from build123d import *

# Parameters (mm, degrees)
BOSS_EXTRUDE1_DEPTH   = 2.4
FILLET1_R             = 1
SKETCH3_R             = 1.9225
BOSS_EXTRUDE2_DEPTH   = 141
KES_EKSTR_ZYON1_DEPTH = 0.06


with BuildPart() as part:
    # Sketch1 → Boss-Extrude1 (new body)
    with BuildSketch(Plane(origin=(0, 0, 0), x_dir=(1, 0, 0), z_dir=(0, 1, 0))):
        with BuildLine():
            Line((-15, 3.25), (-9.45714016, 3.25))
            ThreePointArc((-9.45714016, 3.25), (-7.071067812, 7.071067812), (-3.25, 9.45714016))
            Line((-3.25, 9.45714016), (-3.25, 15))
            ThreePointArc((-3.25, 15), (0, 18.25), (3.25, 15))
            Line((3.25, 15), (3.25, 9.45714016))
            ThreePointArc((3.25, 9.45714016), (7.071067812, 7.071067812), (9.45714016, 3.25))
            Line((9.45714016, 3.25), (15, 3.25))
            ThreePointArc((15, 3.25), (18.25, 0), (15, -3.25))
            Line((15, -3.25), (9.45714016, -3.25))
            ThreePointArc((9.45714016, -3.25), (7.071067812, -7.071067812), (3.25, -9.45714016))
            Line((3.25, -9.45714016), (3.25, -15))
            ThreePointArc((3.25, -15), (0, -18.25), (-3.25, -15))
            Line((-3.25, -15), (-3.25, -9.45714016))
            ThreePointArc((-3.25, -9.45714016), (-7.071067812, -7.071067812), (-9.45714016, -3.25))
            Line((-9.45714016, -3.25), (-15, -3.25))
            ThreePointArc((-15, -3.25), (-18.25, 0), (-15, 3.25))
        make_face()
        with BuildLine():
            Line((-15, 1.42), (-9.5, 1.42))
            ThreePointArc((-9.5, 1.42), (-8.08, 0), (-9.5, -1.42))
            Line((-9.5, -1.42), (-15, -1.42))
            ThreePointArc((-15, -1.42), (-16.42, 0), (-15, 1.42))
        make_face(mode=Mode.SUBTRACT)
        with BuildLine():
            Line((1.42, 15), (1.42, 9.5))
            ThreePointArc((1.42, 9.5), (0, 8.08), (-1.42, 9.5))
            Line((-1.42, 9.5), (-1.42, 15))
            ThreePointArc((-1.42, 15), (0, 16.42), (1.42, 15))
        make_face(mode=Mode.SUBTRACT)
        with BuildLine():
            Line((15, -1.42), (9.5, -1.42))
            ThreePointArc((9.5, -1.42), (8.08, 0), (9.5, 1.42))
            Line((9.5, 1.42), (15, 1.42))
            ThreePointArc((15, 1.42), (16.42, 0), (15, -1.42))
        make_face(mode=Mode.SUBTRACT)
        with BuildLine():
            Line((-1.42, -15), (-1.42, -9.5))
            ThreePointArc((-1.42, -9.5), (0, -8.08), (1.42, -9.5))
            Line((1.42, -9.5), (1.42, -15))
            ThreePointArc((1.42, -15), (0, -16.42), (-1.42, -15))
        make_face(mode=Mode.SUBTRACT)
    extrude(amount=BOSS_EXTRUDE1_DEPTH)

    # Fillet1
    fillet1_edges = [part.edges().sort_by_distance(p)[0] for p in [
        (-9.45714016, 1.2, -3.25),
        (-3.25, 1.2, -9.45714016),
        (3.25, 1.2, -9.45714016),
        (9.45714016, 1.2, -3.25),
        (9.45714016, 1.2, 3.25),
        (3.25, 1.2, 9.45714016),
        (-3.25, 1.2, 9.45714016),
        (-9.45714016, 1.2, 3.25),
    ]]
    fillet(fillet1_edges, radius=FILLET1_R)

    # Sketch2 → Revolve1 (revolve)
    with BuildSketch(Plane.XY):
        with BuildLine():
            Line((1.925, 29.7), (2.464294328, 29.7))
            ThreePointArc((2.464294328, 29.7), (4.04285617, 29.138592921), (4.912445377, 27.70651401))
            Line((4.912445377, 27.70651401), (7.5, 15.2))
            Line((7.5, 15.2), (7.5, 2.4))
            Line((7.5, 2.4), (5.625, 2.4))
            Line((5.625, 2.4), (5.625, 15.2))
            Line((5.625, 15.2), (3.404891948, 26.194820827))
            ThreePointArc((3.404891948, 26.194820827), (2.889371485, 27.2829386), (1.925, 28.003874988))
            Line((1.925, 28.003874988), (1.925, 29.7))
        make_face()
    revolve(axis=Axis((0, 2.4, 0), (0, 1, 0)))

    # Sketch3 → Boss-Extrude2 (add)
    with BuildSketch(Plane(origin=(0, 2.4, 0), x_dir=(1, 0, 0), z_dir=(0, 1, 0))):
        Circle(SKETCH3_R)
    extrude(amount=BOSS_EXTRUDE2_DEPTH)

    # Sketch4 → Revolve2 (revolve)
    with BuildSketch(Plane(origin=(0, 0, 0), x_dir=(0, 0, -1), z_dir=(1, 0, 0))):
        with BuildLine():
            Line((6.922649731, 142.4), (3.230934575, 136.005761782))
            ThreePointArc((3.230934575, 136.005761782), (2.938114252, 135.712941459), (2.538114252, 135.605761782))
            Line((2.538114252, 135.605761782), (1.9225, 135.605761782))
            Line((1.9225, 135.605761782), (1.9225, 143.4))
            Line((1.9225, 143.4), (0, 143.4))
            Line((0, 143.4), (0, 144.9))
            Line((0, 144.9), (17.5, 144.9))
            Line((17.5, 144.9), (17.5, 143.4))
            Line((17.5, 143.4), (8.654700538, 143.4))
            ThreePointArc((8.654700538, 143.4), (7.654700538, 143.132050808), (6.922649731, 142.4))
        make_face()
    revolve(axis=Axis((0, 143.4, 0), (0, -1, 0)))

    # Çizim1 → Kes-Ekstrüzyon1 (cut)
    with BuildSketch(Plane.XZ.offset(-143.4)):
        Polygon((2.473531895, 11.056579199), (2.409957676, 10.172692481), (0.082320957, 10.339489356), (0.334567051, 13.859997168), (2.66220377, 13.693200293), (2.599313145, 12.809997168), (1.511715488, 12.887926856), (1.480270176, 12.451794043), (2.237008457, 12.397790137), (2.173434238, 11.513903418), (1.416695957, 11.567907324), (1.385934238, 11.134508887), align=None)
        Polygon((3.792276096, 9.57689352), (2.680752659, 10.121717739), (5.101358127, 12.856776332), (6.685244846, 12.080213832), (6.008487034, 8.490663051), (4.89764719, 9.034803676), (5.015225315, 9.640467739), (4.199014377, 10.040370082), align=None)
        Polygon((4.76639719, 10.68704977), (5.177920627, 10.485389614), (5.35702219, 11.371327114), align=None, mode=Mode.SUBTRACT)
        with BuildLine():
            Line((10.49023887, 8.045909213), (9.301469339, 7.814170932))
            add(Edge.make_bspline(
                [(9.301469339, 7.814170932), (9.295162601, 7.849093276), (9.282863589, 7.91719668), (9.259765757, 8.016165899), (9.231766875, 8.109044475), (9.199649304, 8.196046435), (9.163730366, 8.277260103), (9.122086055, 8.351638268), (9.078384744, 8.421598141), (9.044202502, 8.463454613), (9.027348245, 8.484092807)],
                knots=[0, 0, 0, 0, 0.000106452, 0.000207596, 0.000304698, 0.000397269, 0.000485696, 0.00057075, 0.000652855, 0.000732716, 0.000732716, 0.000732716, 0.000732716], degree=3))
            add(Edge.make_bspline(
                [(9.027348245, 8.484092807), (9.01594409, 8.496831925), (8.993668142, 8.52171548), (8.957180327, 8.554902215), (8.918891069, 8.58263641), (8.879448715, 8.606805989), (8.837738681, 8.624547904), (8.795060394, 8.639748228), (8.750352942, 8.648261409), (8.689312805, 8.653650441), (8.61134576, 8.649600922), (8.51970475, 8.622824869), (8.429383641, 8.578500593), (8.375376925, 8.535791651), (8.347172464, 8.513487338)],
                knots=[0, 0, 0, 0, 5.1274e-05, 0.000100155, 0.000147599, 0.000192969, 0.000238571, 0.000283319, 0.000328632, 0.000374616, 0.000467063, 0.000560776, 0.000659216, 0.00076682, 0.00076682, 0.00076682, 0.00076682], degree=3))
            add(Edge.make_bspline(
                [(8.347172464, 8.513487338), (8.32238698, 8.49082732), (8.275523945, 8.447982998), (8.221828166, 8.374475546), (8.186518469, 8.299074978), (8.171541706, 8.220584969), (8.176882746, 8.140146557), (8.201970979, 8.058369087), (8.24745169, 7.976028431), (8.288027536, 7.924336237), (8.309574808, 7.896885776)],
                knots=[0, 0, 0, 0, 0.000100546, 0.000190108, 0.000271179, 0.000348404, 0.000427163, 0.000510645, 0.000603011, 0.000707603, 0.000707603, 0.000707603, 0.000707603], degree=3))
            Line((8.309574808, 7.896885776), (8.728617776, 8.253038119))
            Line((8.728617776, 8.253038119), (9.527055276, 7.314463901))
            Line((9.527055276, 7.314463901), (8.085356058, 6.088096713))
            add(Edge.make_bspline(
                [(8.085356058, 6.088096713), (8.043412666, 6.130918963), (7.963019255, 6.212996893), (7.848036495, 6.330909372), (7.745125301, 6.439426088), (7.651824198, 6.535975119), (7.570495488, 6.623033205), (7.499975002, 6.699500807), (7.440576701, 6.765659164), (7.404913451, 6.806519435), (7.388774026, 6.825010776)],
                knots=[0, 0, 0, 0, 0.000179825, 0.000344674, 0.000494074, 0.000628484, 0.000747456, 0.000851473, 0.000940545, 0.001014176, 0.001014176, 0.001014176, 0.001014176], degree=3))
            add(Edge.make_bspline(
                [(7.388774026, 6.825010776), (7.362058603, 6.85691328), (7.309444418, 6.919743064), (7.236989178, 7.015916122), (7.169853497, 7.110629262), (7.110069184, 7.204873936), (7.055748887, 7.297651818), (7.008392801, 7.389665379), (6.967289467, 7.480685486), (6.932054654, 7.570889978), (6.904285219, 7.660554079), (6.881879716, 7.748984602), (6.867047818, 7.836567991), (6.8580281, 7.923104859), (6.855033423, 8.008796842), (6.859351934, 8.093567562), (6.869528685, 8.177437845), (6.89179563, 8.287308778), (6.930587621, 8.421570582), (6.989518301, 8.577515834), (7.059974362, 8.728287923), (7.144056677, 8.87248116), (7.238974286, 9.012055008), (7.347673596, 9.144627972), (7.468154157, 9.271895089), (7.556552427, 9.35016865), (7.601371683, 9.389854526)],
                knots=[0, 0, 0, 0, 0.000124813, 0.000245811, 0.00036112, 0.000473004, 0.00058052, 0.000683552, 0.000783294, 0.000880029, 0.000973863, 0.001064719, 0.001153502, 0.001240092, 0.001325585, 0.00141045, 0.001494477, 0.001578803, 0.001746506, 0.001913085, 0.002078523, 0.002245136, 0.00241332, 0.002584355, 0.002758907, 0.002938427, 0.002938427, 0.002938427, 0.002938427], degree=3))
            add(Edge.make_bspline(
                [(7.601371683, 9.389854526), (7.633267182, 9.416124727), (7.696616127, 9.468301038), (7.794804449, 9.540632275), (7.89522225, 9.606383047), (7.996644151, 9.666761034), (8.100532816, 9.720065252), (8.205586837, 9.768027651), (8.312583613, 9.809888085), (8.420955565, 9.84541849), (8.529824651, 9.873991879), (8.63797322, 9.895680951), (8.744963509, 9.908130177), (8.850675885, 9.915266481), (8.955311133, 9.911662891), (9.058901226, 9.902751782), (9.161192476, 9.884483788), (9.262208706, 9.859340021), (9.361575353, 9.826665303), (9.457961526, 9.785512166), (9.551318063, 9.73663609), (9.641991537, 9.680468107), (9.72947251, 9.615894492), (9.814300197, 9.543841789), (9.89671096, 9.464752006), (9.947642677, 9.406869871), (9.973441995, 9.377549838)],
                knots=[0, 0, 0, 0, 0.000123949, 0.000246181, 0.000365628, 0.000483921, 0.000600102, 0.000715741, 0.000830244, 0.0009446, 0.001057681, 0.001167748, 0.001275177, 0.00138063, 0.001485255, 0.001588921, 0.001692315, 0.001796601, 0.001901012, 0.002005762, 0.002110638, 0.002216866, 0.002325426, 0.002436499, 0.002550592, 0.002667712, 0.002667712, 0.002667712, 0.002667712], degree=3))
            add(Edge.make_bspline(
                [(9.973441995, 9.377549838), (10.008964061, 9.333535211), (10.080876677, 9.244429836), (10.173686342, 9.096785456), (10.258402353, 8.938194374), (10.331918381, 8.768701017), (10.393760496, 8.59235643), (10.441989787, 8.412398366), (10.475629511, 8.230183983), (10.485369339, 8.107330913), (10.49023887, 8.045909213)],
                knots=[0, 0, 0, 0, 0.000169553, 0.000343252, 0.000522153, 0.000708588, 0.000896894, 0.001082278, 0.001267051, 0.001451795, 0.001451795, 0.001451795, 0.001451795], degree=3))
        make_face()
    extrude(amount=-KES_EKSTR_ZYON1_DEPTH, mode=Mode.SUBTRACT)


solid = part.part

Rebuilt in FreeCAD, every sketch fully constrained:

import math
import FreeCAD as App
import Part
import Sketcher
from FreeCAD import Vector
Q = App.Units.Quantity


def edges_at(feature, points):
    """Names of the edges that pass closest to the given points."""
    edges = feature.Shape.Edges
    near = lambda p: min(range(len(edges)), key=lambda i: edges[i].distToShape(Part.Vertex(*p))[0])
    return sorted({f"Edge{near(p) + 1}" for p in points})

doc = App.newDocument("Part")
params = doc.addObject("Spreadsheet::Sheet", "Params")
for row, (alias, value) in enumerate([
    ("sketch1_radius", "10 mm"),
    ("sketch1_radius2", "3.25 mm"),
    ("sketch1_radius3", "1.42 mm"),
    ("sketch1_width", "5.5 mm"),
    ("pad1_length", "2.4 mm"),
    ("fillet_radius", "1 mm"),
    ("sketch2_radius", "2.5 mm"),
    ("sketch2_height", "12.8 mm"),
    ("revolution_angle", "360 deg"),
    ("pad2_length", "141 mm"),
    ("sketch4_radius", "2 mm"),
    ("sketch4_radius2", "0.8 mm"),
    ("sketch4_width", "1.5 mm"),
    ("sketch4_height", "17.5 mm"),
    ("revolution2_angle", "360 deg"),
    ("pocket1_length", "0.06 mm"),
], start=1):
    params.set(f"A{row}", alias)
    params.set(f"B{row}", "=" + value)
    params.setAlias(f"B{row}", alias)

body = doc.addObject("PartDesign::Body", "Body")

# Sketch on XZ plane
sketch1 = body.newObject("Sketcher::SketchObject", "Sketch")
sketch1.AttachmentSupport = (doc.getObject("XZ_Plane"), [""])
sketch1.MapMode = "FlatFace"
sketch1.addGeometry([
    Part.LineSegment(Vector(-9.5, -3.2, 0), Vector(-15, -3.2, 0)),  # 0
    Part.ArcOfCircle(Part.Circle(Vector(-15, 0, 0), Vector(0, 0, 1), 3.2), math.radians(90), math.radians(270)),  # 1
    Part.LineSegment(Vector(-15, 3.2, 0), Vector(-9.5, 3.2, 0)),  # 2
    Part.ArcOfCircle(Part.Circle(Vector(0, 0, 0), Vector(0, 0, 1), 10), math.radians(109), math.radians(161)),  # 3
    Part.LineSegment(Vector(-3.2, 9.5, 0), Vector(-3.2, 15, 0)),  # 4
    Part.ArcOfCircle(Part.Circle(Vector(0, 15, 0), Vector(0, 0, 1), 3.2), math.radians(0), math.radians(180)),  # 5
    Part.LineSegment(Vector(3.2, 15, 0), Vector(3.2, 9.5, 0)),  # 6
    Part.ArcOfCircle(Part.Circle(Vector(0, 0, 0), Vector(0, 0, 1), 10), math.radians(19), math.radians(71)),  # 7
    Part.LineSegment(Vector(9.5, 3.2, 0), Vector(15, 3.2, 0)),  # 8
    Part.ArcOfCircle(Part.Circle(Vector(15, 0, 0), Vector(0, 0, 1), 3.2), math.radians(-90), math.radians(90)),  # 9
    Part.LineSegment(Vector(15, -3.2, 0), Vector(9.5, -3.2, 0)),  # 10
    Part.ArcOfCircle(Part.Circle(Vector(0, 0, 0), Vector(0, 0, 1), 10), math.radians(-71), math.radians(-19)),  # 11
    Part.LineSegment(Vector(3.2, -9.5, 0), Vector(3.2, -15, 0)),  # 12
    Part.ArcOfCircle(Part.Circle(Vector(0, -15, 0), Vector(0, 0, 1), 3.2), math.radians(180), math.radians(360)),  # 13
    Part.LineSegment(Vector(-3.2, -15, 0), Vector(-3.2, -9.5, 0)),  # 14
    Part.ArcOfCircle(Part.Circle(Vector(0, 0, 0), Vector(0, 0, 1), 10), math.radians(-161), math.radians(-109)),  # 15
    Part.LineSegment(Vector(-1.4, 15, 0), Vector(-1.4, 9.5, 0)),  # 16
    Part.ArcOfCircle(Part.Circle(Vector(0, 9.5, 0), Vector(0, 0, 1), 1.4), math.radians(180), math.radians(360)),  # 17
    Part.LineSegment(Vector(1.4, 9.5, 0), Vector(1.4, 15, 0)),  # 18
    Part.ArcOfCircle(Part.Circle(Vector(0, 15, 0), Vector(0, 0, 1), 1.4), math.radians(0), math.radians(180)),  # 19
    Part.LineSegment(Vector(15, 1.4, 0), Vector(9.5, 1.4, 0)),  # 20
    Part.ArcOfCircle(Part.Circle(Vector(9.5, 0, 0), Vector(0, 0, 1), 1.4), math.radians(90), math.radians(270)),  # 21
    Part.LineSegment(Vector(9.5, -1.4, 0), Vector(15, -1.4, 0)),  # 22
    Part.ArcOfCircle(Part.Circle(Vector(15, 0, 0), Vector(0, 0, 1), 1.4), math.radians(-90), math.radians(90)),  # 23
    Part.LineSegment(Vector(-15, -1.4, 0), Vector(-9.5, -1.4, 0)),  # 24
    Part.ArcOfCircle(Part.Circle(Vector(-9.5, 0, 0), Vector(0, 0, 1), 1.4), math.radians(-90), math.radians(90)),  # 25
    Part.LineSegment(Vector(-9.5, 1.4, 0), Vector(-15, 1.4, 0)),  # 26
    Part.ArcOfCircle(Part.Circle(Vector(-15, 0, 0), Vector(0, 0, 1), 1.4), math.radians(90), math.radians(270)),  # 27
    Part.LineSegment(Vector(1.4, -15, 0), Vector(1.4, -9.5, 0)),  # 28
    Part.ArcOfCircle(Part.Circle(Vector(0, -9.5, 0), Vector(0, 0, 1), 1.4), math.radians(0), math.radians(180)),  # 29
    Part.LineSegment(Vector(-1.4, -9.5, 0), Vector(-1.4, -15, 0)),  # 30
    Part.ArcOfCircle(Part.Circle(Vector(0, -15, 0), Vector(0, 0, 1), 1.4), math.radians(180), math.radians(360)),  # 31
], False)
sketch1.addConstraint([
    Sketcher.Constraint("Tangent", 0, 2, 1, 2),
    Sketcher.Constraint("Tangent", 1, 1, 2, 1),
    Sketcher.Constraint("Coincident", 2, 2, 3, 2),
    Sketcher.Constraint("Coincident", 3, 1, 4, 1),
    Sketcher.Constraint("Tangent", 4, 2, 5, 2),
    Sketcher.Constraint("Tangent", 5, 1, 6, 1),
    Sketcher.Constraint("Coincident", 6, 2, 7, 2),
    Sketcher.Constraint("Coincident", 7, 1, 8, 1),
    Sketcher.Constraint("Tangent", 8, 2, 9, 2),
    Sketcher.Constraint("Tangent", 9, 1, 10, 1),
    Sketcher.Constraint("Coincident", 10, 2, 11, 2),
    Sketcher.Constraint("Coincident", 11, 1, 12, 1),
    Sketcher.Constraint("Tangent", 12, 2, 13, 2),
    Sketcher.Constraint("Tangent", 13, 1, 14, 1),
    Sketcher.Constraint("Coincident", 14, 2, 15, 2),
    Sketcher.Constraint("Coincident", 15, 1, 0, 1),
    Sketcher.Constraint("Tangent", 16, 2, 17, 1),
    Sketcher.Constraint("Tangent", 17, 2, 18, 1),
    Sketcher.Constraint("Tangent", 18, 2, 19, 1),
    Sketcher.Constraint("Tangent", 19, 2, 16, 1),
    Sketcher.Constraint("Tangent", 20, 2, 21, 1),
    Sketcher.Constraint("Tangent", 21, 2, 22, 1),
    Sketcher.Constraint("Tangent", 22, 2, 23, 1),
    Sketcher.Constraint("Tangent", 23, 2, 20, 1),
    Sketcher.Constraint("Tangent", 24, 2, 25, 1),
    Sketcher.Constraint("Tangent", 25, 2, 26, 1),
    Sketcher.Constraint("Tangent", 26, 2, 27, 1),
    Sketcher.Constraint("Tangent", 27, 2, 24, 1),
    Sketcher.Constraint("Tangent", 28, 2, 29, 1),
    Sketcher.Constraint("Tangent", 29, 2, 30, 1),
    Sketcher.Constraint("Tangent", 30, 2, 31, 1),
    Sketcher.Constraint("Tangent", 31, 2, 28, 1),
    Sketcher.Constraint("Horizontal", 0),
    Sketcher.Constraint("Horizontal", 2),
    Sketcher.Constraint("Vertical", 4),
    Sketcher.Constraint("Vertical", 6),
    Sketcher.Constraint("Horizontal", 8),
    Sketcher.Constraint("Horizontal", 10),
    Sketcher.Constraint("Vertical", 12),
    Sketcher.Constraint("Vertical", 14),
    Sketcher.Constraint("Vertical", 16),
    Sketcher.Constraint("Vertical", 18),
    Sketcher.Constraint("Horizontal", 20),
    Sketcher.Constraint("Horizontal", 22),
    Sketcher.Constraint("Horizontal", 24),
    Sketcher.Constraint("Horizontal", 26),
    Sketcher.Constraint("Vertical", 28),
    Sketcher.Constraint("Vertical", 30),
    Sketcher.Constraint("Coincident", 3, 3, -1, 1),
    Sketcher.Constraint("Coincident", 7, 3, -1, 1),
    Sketcher.Constraint("Coincident", 11, 3, -1, 1),
    Sketcher.Constraint("Coincident", 15, 3, -1, 1),
    Sketcher.Constraint("Coincident", 19, 3, 5, 3),
    Sketcher.Constraint("Coincident", 23, 3, 9, 3),
    Sketcher.Constraint("Coincident", 27, 3, 1, 3),
    Sketcher.Constraint("Coincident", 31, 3, 13, 3),
    Sketcher.Constraint("Equal", 1, 5),
    Sketcher.Constraint("Equal", 3, 7),
    Sketcher.Constraint("Equal", 5, 9),
    Sketcher.Constraint("Equal", 7, 11),
    Sketcher.Constraint("Equal", 9, 13),
    Sketcher.Constraint("Equal", 11, 15),
    Sketcher.Constraint("Equal", 19, 21),
    Sketcher.Constraint("Equal", 23, 25),
    Sketcher.Constraint("Equal", 27, 29),
    Sketcher.Constraint("Symmetric", 1, 3, 9, 3, -1, 1),
    Sketcher.Constraint("Symmetric", 5, 3, 13, 3, -1, 1),
    Sketcher.Constraint("Symmetric", 21, 3, 25, 3, -2),
    Sketcher.Constraint("Symmetric", 17, 3, 29, 3, -1),
    Sketcher.Constraint("Equal", 10, 4),
    Sketcher.Constraint("Equal", 26, 16),
    Sketcher.Constraint("Radius", 3, 10.0),
    Sketcher.Constraint("Radius", 1, 3.25),
    Sketcher.Constraint("Radius", 17, 1.42),
    Sketcher.Constraint("DistanceX", 20, 2, 20, 1, 5.5),
    Sketcher.Constraint("DistanceX", 1, 3, -1, 1, 15.0),
])
sketch1.setExpression("Constraints[71]", "Params.sketch1_radius")
sketch1.setExpression("Constraints[72]", "Params.sketch1_radius2")
sketch1.setExpression("Constraints[73]", "Params.sketch1_radius3")
sketch1.setExpression("Constraints[74]", "Params.sketch1_width")
pad1 = body.newObject("PartDesign::Pad", "Pad")
pad1.Profile = sketch1
pad1.setExpression("Length", "Params.pad1_length")
pad1.Reversed = True
doc.recompute()

fillet = body.newObject("PartDesign::Fillet", "Fillet")
fillet.Base = (pad1, edges_at(pad1, [
    (-9.457, 1.2, -3.25),
    (-3.25, 1.2, -9.457),
    (3.25, 1.2, -9.457),
    (9.457, 1.2, -3.25),
    (9.457, 1.2, 3.25),
    (3.25, 1.2, 9.457),
    (-3.25, 1.2, 9.457),
    (-9.457, 1.2, 3.25),
]))
fillet.setExpression("Radius", "Params.fillet_radius")

# Sketch on XY plane
sketch2 = body.newObject("Sketcher::SketchObject", "Sketch001")
sketch2.AttachmentSupport = (doc.getObject("XY_Plane"), [""])
sketch2.MapMode = "FlatFace"
sketch2.addGeometry([
    Part.LineSegment(Vector(2.5, 29.7, 0), Vector(1.9, 29.7, 0)),  # 0
    Part.LineSegment(Vector(1.9, 29.7, 0), Vector(1.9, 28, 0)),  # 1
    Part.ArcOfCircle(Part.Circle(Vector(1, 25.7, 0), Vector(0, 0, 1), 2.5), math.radians(11), math.radians(67)),  # 2
    Part.LineSegment(Vector(3.4, 26.2, 0), Vector(5.6, 15.2, 0)),  # 3
    Part.LineSegment(Vector(5.6, 15.2, 0), Vector(5.6, 2.4, 0)),  # 4
    Part.LineSegment(Vector(5.6, 2.4, 0), Vector(7.5, 2.4, 0)),  # 5
    Part.LineSegment(Vector(7.5, 2.4, 0), Vector(7.5, 15.2, 0)),  # 6
    Part.LineSegment(Vector(7.5, 15.2, 0), Vector(4.9, 27.7, 0)),  # 7
    Part.ArcOfCircle(Part.Circle(Vector(2.5, 27.2, 0), Vector(0, 0, 1), 2.5), math.radians(12), math.radians(90)),  # 8
], False)
sketch2.addConstraint([
    Sketcher.Constraint("Coincident", 0, 2, 1, 1),
    Sketcher.Constraint("Coincident", 1, 2, 2, 2),
    Sketcher.Constraint("Tangent", 2, 1, 3, 1),
    Sketcher.Constraint("Coincident", 3, 2, 4, 1),
    Sketcher.Constraint("Coincident", 4, 2, 5, 1),
    Sketcher.Constraint("Coincident", 5, 2, 6, 1),
    Sketcher.Constraint("Coincident", 6, 2, 7, 1),
    Sketcher.Constraint("Tangent", 7, 2, 8, 1),
    Sketcher.Constraint("Tangent", 8, 2, 0, 1),
    Sketcher.Constraint("Horizontal", 0),
    Sketcher.Constraint("Vertical", 1),
    Sketcher.Constraint("Vertical", 4),
    Sketcher.Constraint("Horizontal", 5),
    Sketcher.Constraint("Vertical", 6),
    Sketcher.Constraint("Equal", 2, 8),
    Sketcher.Constraint("Horizontal", 3, 2, 6, 2),
    Sketcher.Constraint("Radius", 2, 2.5),
    Sketcher.Constraint("DistanceY", 4, 2, 4, 1, 12.8),
    Sketcher.Constraint("DistanceY", 2, 3, 0, 2, 4.0),
    Sketcher.Constraint("DistanceY", 3, 2, 8, 3, 12.0),
    Sketcher.Constraint("DistanceY", -1, 1, 2, 3, 25.7),
    Sketcher.Constraint("DistanceX", -1, 1, 5, 2, 7.5),
    Sketcher.Constraint("DistanceX", 1, 2, 3, 2, 3.7),
    Sketcher.Constraint("DistanceX", 5, 1, 5, 2, 1.875),
    Sketcher.Constraint("DistanceX", 0, 2, 0, 1, 0.539294),
    Sketcher.Constraint("DistanceY", 1, 2, 1, 1, 1.696125),
])
sketch2.setExpression("Constraints[16]", "Params.sketch2_radius")
sketch2.setExpression("Constraints[17]", "Params.sketch2_height")
revolution = body.newObject("PartDesign::Revolution", "Revolution")
revolution.Profile = sketch2
revolution.ReferenceAxis = (sketch2, ["V_Axis"])
revolution.setExpression("Angle", "Params.revolution_angle")

# Sketch on XZ plane
sketch3 = body.newObject("Sketcher::SketchObject", "Sketch002")
sketch3.AttachmentSupport = (doc.getObject("XZ_Plane"), [""])
sketch3.MapMode = "FlatFace"
sketch3.AttachmentOffset = App.Placement(Vector(0, 0, -2.4), App.Rotation())
sketch3.addGeometry(Part.Circle(Vector(0, 0, 0), Vector(0, 0, 1), 1.9), False)
sketch3.addConstraint([
    Sketcher.Constraint("Coincident", 0, 3, -1, 1),
    Sketcher.Constraint("Diameter", 0, 3.845),
])
pad2 = body.newObject("PartDesign::Pad", "Pad001")
pad2.Profile = sketch3
pad2.setExpression("Length", "Params.pad2_length")
pad2.Reversed = True

# Sketch on YZ plane
sketch4 = body.newObject("Sketcher::SketchObject", "Sketch003")
sketch4.AttachmentSupport = (doc.getObject("YZ_Plane"), [""])
sketch4.MapMode = "FlatFace"
sketch4.addGeometry([
    Part.LineSegment(Vector(136, -3.2, 0), Vector(142.4, -6.9, 0)),  # 0
    Part.ArcOfCircle(Part.Circle(Vector(141.4, -8.7, 0), Vector(0, 0, 1), 2), math.radians(0), math.radians(60)),  # 1
    Part.LineSegment(Vector(143.4, -8.7, 0), Vector(143.4, -17.5, 0)),  # 2
    Part.LineSegment(Vector(143.4, -17.5, 0), Vector(144.9, -17.5, 0)),  # 3
    Part.LineSegment(Vector(144.9, -17.5, 0), Vector(144.9, 0, 0)),  # 4
    Part.LineSegment(Vector(144.9, 0, 0), Vector(143.4, 0, 0)),  # 5
    Part.LineSegment(Vector(143.4, 0, 0), Vector(143.4, -1.9, 0)),  # 6
    Part.LineSegment(Vector(143.4, -1.9, 0), Vector(135.6, -1.9, 0)),  # 7
    Part.LineSegment(Vector(135.6, -1.9, 0), Vector(135.6, -2.5, 0)),  # 8
    Part.ArcOfCircle(Part.Circle(Vector(136.4, -2.5, 0), Vector(0, 0, 1), 0.8), math.radians(180), math.radians(240)),  # 9
], False)
sketch4.addConstraint([
    Sketcher.Constraint("Tangent", 0, 2, 1, 2),
    Sketcher.Constraint("Tangent", 1, 1, 2, 1),
    Sketcher.Constraint("Coincident", 2, 2, 3, 1),
    Sketcher.Constraint("Coincident", 3, 2, 4, 1),
    Sketcher.Constraint("Coincident", 4, 2, 5, 1),
    Sketcher.Constraint("Coincident", 5, 2, 6, 1),
    Sketcher.Constraint("Coincident", 6, 2, 7, 1),
    Sketcher.Constraint("Coincident", 7, 2, 8, 1),
    Sketcher.Constraint("Tangent", 8, 2, 9, 1),
    Sketcher.Constraint("Tangent", 9, 2, 0, 1),
    Sketcher.Constraint("Vertical", 2),
    Sketcher.Constraint("Horizontal", 3),
    Sketcher.Constraint("Vertical", 4),
    Sketcher.Constraint("Horizontal", 5),
    Sketcher.Constraint("Vertical", 6),
    Sketcher.Constraint("Horizontal", 7),
    Sketcher.Constraint("Vertical", 8),
    Sketcher.Constraint("PointOnObject", 4, 2, -1),
    Sketcher.Constraint("Vertical", 2, 2, 5, 2),
    Sketcher.Constraint("Radius", 1, 2.0),
    Sketcher.Constraint("Radius", 9, 0.8),
    Sketcher.Constraint("Angle", 0, Q("-30 deg")),
    Sketcher.Constraint("DistanceX", 3, 1, 3, 2, 1.5),
    Sketcher.Constraint("DistanceY", 4, 1, 4, 2, 17.5),
    Sketcher.Constraint("DistanceX", -1, 1, 1, 3, 141.4),
    Sketcher.Constraint("DistanceY", 2, 2, 2, 1, 8.845299),
    Sketcher.Constraint("DistanceY", 6, 2, 6, 1, 1.9225),
    Sketcher.Constraint("DistanceX", 7, 2, 7, 1, 7.794238),
])
sketch4.setExpression("Constraints[19]", "Params.sketch4_radius")
sketch4.setExpression("Constraints[20]", "Params.sketch4_radius2")
sketch4.setExpression("Constraints[22]", "Params.sketch4_width")
sketch4.setExpression("Constraints[23]", "Params.sketch4_height")
revolution2 = body.newObject("PartDesign::Revolution", "Revolution001")
revolution2.Profile = sketch4
revolution2.ReferenceAxis = (sketch4, ["H_Axis"])
revolution2.setExpression("Angle", "Params.revolution2_angle")

# Sketch on XZ plane
sketch5 = body.newObject("Sketcher::SketchObject", "Sketch004")
sketch5.AttachmentSupport = (doc.getObject("XZ_Plane"), [""])
sketch5.MapMode = "FlatFace"
sketch5.AttachmentOffset = App.Placement(Vector(0, 0, -143.4), App.Rotation())
sketch5.addGeometry([
    Part.LineSegment(Vector(2.409958, 10.172692, 0), Vector(2.473532, 11.056579, 0)),  # 0
    Part.LineSegment(Vector(2.473532, 11.056579, 0), Vector(1.385934, 11.134509, 0)),  # 1
    Part.LineSegment(Vector(1.385934, 11.134509, 0), Vector(1.416696, 11.567907, 0)),  # 2
    Part.LineSegment(Vector(1.416696, 11.567907, 0), Vector(2.173434, 11.513903, 0)),  # 3
    Part.LineSegment(Vector(2.173434, 11.513903, 0), Vector(2.237008, 12.39779, 0)),  # 4
    Part.LineSegment(Vector(2.237008, 12.39779, 0), Vector(1.48027, 12.451794, 0)),  # 5
    Part.LineSegment(Vector(1.48027, 12.451794, 0), Vector(1.511715, 12.887927, 0)),  # 6
    Part.LineSegment(Vector(1.511715, 12.887927, 0), Vector(2.599313, 12.809997, 0)),  # 7
    Part.LineSegment(Vector(2.599313, 12.809997, 0), Vector(2.662204, 13.6932, 0)),  # 8
    Part.LineSegment(Vector(2.662204, 13.6932, 0), Vector(0.334567, 13.859997, 0)),  # 9
    Part.LineSegment(Vector(0.334567, 13.859997, 0), Vector(0.082321, 10.339489, 0)),  # 10
    Part.LineSegment(Vector(0.082321, 10.339489, 0), Vector(2.409958, 10.172692, 0)),  # 11
    Part.LineSegment(Vector(2.680753, 10.121718, 0), Vector(3.792276, 9.576894, 0)),  # 12
    Part.LineSegment(Vector(3.792276, 9.576894, 0), Vector(4.199014, 10.04037, 0)),  # 13
    Part.LineSegment(Vector(4.199014, 10.04037, 0), Vector(5.015225, 9.640468, 0)),  # 14
    Part.LineSegment(Vector(5.015225, 9.640468, 0), Vector(4.897647, 9.034804, 0)),  # 15
    Part.LineSegment(Vector(4.897647, 9.034804, 0), Vector(6.008487, 8.490663, 0)),  # 16
    Part.LineSegment(Vector(6.008487, 8.490663, 0), Vector(6.685245, 12.080214, 0)),  # 17
    Part.LineSegment(Vector(6.685245, 12.080214, 0), Vector(5.101358, 12.856776, 0)),  # 18
    Part.LineSegment(Vector(5.101358, 12.856776, 0), Vector(2.680753, 10.121718, 0)),  # 19
    Part.LineSegment(Vector(4.766397, 10.68705, 0), Vector(5.357022, 11.371327, 0)),  # 20
    Part.LineSegment(Vector(5.357022, 11.371327, 0), Vector(5.177921, 10.48539, 0)),  # 21
    Part.LineSegment(Vector(5.177921, 10.48539, 0), Vector(4.766397, 10.68705, 0)),  # 22
    Part.LineSegment(Vector(9.301469, 7.814171, 0), Vector(10.490239, 8.045909, 0)),  # 23
    Part.BSplineCurve([Vector(9.973442, 9.37755, 0), Vector(10.008964, 9.333535, 0), Vector(10.080877, 9.24443, 0), Vector(10.173686, 9.096785, 0), Vector(10.258402, 8.938194, 0), Vector(10.331918, 8.768701, 0), Vector(10.39376, 8.592356, 0), Vector(10.44199, 8.412398, 0), Vector(10.47563, 8.230184, 0), Vector(10.485369, 8.107331, 0), Vector(10.490239, 8.045909, 0)], [4, 1, 1, 1, 1, 1, 1, 1, 4], [0, 0.000169553, 0.000343252, 0.000522153, 0.000708588, 0.000896894, 0.001082278, 0.001267051, 0.001451795], False, 3, [1, 1, 1, 1, 1, 1, 1, 1, 1, 1, 1], False),  # 24
    Part.BSplineCurve([Vector(7.601372, 9.389855, 0), Vector(7.633267, 9.416125, 0), Vector(7.696616, 9.468301, 0), Vector(7.794804, 9.540632, 0), Vector(7.895222, 9.606383, 0), Vector(7.996644, 9.666761, 0), Vector(8.100533, 9.720065, 0), Vector(8.205587, 9.768028, 0), Vector(8.312584, 9.809888, 0), Vector(8.420956, 9.845418, 0), Vector(8.529825, 9.873992, 0), Vector(8.637973, 9.895681, 0), Vector(8.744964, 9.90813, 0), Vector(8.850676, 9.915266, 0), Vector(8.955311, 9.911663, 0), Vector(9.058901, 9.902752, 0), Vector(9.161192, 9.884484, 0), Vector(9.262209, 9.85934, 0), Vector(9.361575, 9.826665, 0), Vector(9.457962, 9.785512, 0), Vector(9.551318, 9.736636, 0), Vector(9.641992, 9.680468, 0), Vector(9.729473, 9.615894, 0), Vector(9.8143, 9.543842, 0), Vector(9.896711, 9.464752, 0), Vector(9.947643, 9.40687, 0), Vector(9.973442, 9.37755, 0)], [4, 1, 1, 1, 1, 1, 1, 1, 1, 1, 1, 1, 1, 1, 1, 1, 1, 1, 1, 1, 1, 1, 1, 1, 4], [0, 0.000123949, 0.000246181, 0.000365628, 0.000483921, 0.000600102, 0.000715741, 0.000830244, 0.0009446, 0.001057681, 0.001167748, 0.001275177, 0.00138063, 0.001485255, 0.001588921, 0.001692315, 0.001796601, 0.001901012, 0.002005762, 0.002110638, 0.002216866, 0.002325426, 0.002436499, 0.002550592, 0.002667712], False, 3, [1, 1, 1, 1, 1, 1, 1, 1, 1, 1, 1, 1, 1, 1, 1, 1, 1, 1, 1, 1, 1, 1, 1, 1, 1, 1, 1], False),  # 25
    Part.BSplineCurve([Vector(7.388774, 6.825011, 0), Vector(7.362059, 6.856913, 0), Vector(7.309444, 6.919743, 0), Vector(7.236989, 7.015916, 0), Vector(7.169853, 7.110629, 0), Vector(7.110069, 7.204874, 0), Vector(7.055749, 7.297652, 0), Vector(7.008393, 7.389665, 0), Vector(6.967289, 7.480685, 0), Vector(6.932055, 7.57089, 0), Vector(6.904285, 7.660554, 0), Vector(6.88188, 7.748985, 0), Vector(6.867048, 7.836568, 0), Vector(6.858028, 7.923105, 0), Vector(6.855033, 8.008797, 0), Vector(6.859352, 8.093568, 0), Vector(6.869529, 8.177438, 0), Vector(6.891796, 8.287309, 0), Vector(6.930588, 8.421571, 0), Vector(6.989518, 8.577516, 0), Vector(7.059974, 8.728288, 0), Vector(7.144057, 8.872481, 0), Vector(7.238974, 9.012055, 0), Vector(7.347674, 9.144628, 0), Vector(7.468154, 9.271895, 0), Vector(7.556552, 9.350169, 0), Vector(7.601372, 9.389855, 0)], [4, 1, 1, 1, 1, 1, 1, 1, 1, 1, 1, 1, 1, 1, 1, 1, 1, 1, 1, 1, 1, 1, 1, 1, 4], [0, 0.000124813, 0.000245811, 0.00036112, 0.000473004, 0.00058052, 0.000683552, 0.000783294, 0.000880029, 0.000973863, 0.001064719, 0.001153502, 0.001240092, 0.001325585, 0.00141045, 0.001494477, 0.001578803, 0.001746506, 0.001913085, 0.002078523, 0.002245136, 0.00241332, 0.002584355, 0.002758907, 0.002938427], False, 3, [1, 1, 1, 1, 1, 1, 1, 1, 1, 1, 1, 1, 1, 1, 1, 1, 1, 1, 1, 1, 1, 1, 1, 1, 1, 1, 1], False),  # 26
    Part.BSplineCurve([Vector(8.085356, 6.088097, 0), Vector(8.043413, 6.130919, 0), Vector(7.963019, 6.212997, 0), Vector(7.848036, 6.330909, 0), Vector(7.745125, 6.439426, 0), Vector(7.651824, 6.535975, 0), Vector(7.570495, 6.623033, 0), Vector(7.499975, 6.699501, 0), Vector(7.440577, 6.765659, 0), Vector(7.404913, 6.806519, 0), Vector(7.388774, 6.825011, 0)], [4, 1, 1, 1, 1, 1, 1, 1, 4], [0, 0.000179825, 0.000344674, 0.000494074, 0.000628484, 0.000747456, 0.000851473, 0.000940545, 0.001014176], False, 3, [1, 1, 1, 1, 1, 1, 1, 1, 1, 1, 1], False),  # 27
    Part.LineSegment(Vector(8.085356, 6.088097, 0), Vector(9.527055, 7.314464, 0)),  # 28
    Part.LineSegment(Vector(9.527055, 7.314464, 0), Vector(8.728618, 8.253038, 0)),  # 29
    Part.LineSegment(Vector(8.728618, 8.253038, 0), Vector(8.309575, 7.896886, 0)),  # 30
    Part.BSplineCurve([Vector(8.347172, 8.513487, 0), Vector(8.322387, 8.490827, 0), Vector(8.275524, 8.447983, 0), Vector(8.221828, 8.374476, 0), Vector(8.186518, 8.299075, 0), Vector(8.171542, 8.220585, 0), Vector(8.176883, 8.140147, 0), Vector(8.201971, 8.058369, 0), Vector(8.247452, 7.976028, 0), Vector(8.288028, 7.924336, 0), Vector(8.309575, 7.896886, 0)], [4, 1, 1, 1, 1, 1, 1, 1, 4], [0, 0.000100546, 0.000190108, 0.000271179, 0.000348404, 0.000427163, 0.000510645, 0.000603011, 0.000707603], False, 3, [1, 1, 1, 1, 1, 1, 1, 1, 1, 1, 1], False),  # 31
    Part.BSplineCurve([Vector(9.027348, 8.484093, 0), Vector(9.015944, 8.496832, 0), Vector(8.993668, 8.521715, 0), Vector(8.95718, 8.554902, 0), Vector(8.918891, 8.582636, 0), Vector(8.879449, 8.606806, 0), Vector(8.837739, 8.624548, 0), Vector(8.79506, 8.639748, 0), Vector(8.750353, 8.648261, 0), Vector(8.689313, 8.65365, 0), Vector(8.611346, 8.649601, 0), Vector(8.519705, 8.622825, 0), Vector(8.429384, 8.578501, 0), Vector(8.375377, 8.535792, 0), Vector(8.347172, 8.513487, 0)], [4, 1, 1, 1, 1, 1, 1, 1, 1, 1, 1, 1, 4], [0, 0.000051274, 0.000100155, 0.000147599, 0.000192969, 0.000238571, 0.000283319, 0.000328632, 0.000374616, 0.000467063, 0.000560776, 0.000659216, 0.00076682], False, 3, [1, 1, 1, 1, 1, 1, 1, 1, 1, 1, 1, 1, 1, 1, 1], False),  # 32
    Part.BSplineCurve([Vector(9.301469, 7.814171, 0), Vector(9.295163, 7.849093, 0), Vector(9.282864, 7.917197, 0), Vector(9.259766, 8.016166, 0), Vector(9.231767, 8.109044, 0), Vector(9.199649, 8.196046, 0), Vector(9.16373, 8.27726, 0), Vector(9.122086, 8.351638, 0), Vector(9.078385, 8.421598, 0), Vector(9.044203, 8.463455, 0), Vector(9.027348, 8.484093, 0)], [4, 1, 1, 1, 1, 1, 1, 1, 4], [0, 0.000106452, 0.000207596, 0.000304698, 0.000397269, 0.000485696, 0.00057075, 0.000652855, 0.000732716], False, 3, [1, 1, 1, 1, 1, 1, 1, 1, 1, 1, 1], False),  # 33
], False)
sketch5.addConstraint([
    Sketcher.Constraint("Block", 24),
    Sketcher.Constraint("Block", 25),
    Sketcher.Constraint("Block", 26),
    Sketcher.Constraint("Block", 27),
    Sketcher.Constraint("Block", 31),
    Sketcher.Constraint("Block", 32),
    Sketcher.Constraint("Block", 33),
    Sketcher.Constraint("Coincident", 0, 2, 1, 1),
    Sketcher.Constraint("Coincident", 1, 2, 2, 1),
    Sketcher.Constraint("Coincident", 2, 2, 3, 1),
    Sketcher.Constraint("Coincident", 3, 2, 4, 1),
    Sketcher.Constraint("Coincident", 4, 2, 5, 1),
    Sketcher.Constraint("Coincident", 5, 2, 6, 1),
    Sketcher.Constraint("Coincident", 6, 2, 7, 1),
    Sketcher.Constraint("Coincident", 7, 2, 8, 1),
    Sketcher.Constraint("Coincident", 8, 2, 9, 1),
    Sketcher.Constraint("Coincident", 9, 2, 10, 1),
    Sketcher.Constraint("Coincident", 10, 2, 11, 1),
    Sketcher.Constraint("Coincident", 11, 2, 0, 1),
    Sketcher.Constraint("Coincident", 12, 2, 13, 1),
    Sketcher.Constraint("Coincident", 13, 2, 14, 1),
    Sketcher.Constraint("Coincident", 14, 2, 15, 1),
    Sketcher.Constraint("Coincident", 15, 2, 16, 1),
    Sketcher.Constraint("Coincident", 16, 2, 17, 1),
    Sketcher.Constraint("Coincident", 17, 2, 18, 1),
    Sketcher.Constraint("Coincident", 18, 2, 19, 1),
    Sketcher.Constraint("Coincident", 19, 2, 12, 1),
    Sketcher.Constraint("Coincident", 20, 2, 21, 1),
    Sketcher.Constraint("Coincident", 21, 2, 22, 1),
    Sketcher.Constraint("Coincident", 22, 2, 20, 1),
    Sketcher.Constraint("Coincident", 23, 2, 24, 2),
    Sketcher.Constraint("Coincident", 27, 1, 28, 1),
    Sketcher.Constraint("Coincident", 28, 2, 29, 1),
    Sketcher.Constraint("Coincident", 29, 2, 30, 1),
    Sketcher.Constraint("Coincident", 30, 2, 31, 2),
    Sketcher.Constraint("Coincident", 33, 1, 23, 1),
    Sketcher.Constraint("Parallel", 0, 4),
    Sketcher.Constraint("Parallel", 3, 5),
    Sketcher.Constraint("Parallel", 1, 7),
    Sketcher.Constraint("Parallel", 9, 11),
    Sketcher.Constraint("Equal", 0, 4),
    Sketcher.Constraint("Equal", 3, 5),
    Sketcher.Constraint("Equal", 1, 7),
    Sketcher.Constraint("Equal", 9, 11),
    Sketcher.Constraint("DistanceY", 7, 2, 9, 2, 1.05),
    Sketcher.Constraint("DistanceY", -1, 1, 8, 2, 13.6932),
    Sketcher.Constraint("DistanceY", 1, 2, 2, 2, 0.433398),
    Sketcher.Constraint("DistanceX", 1, 2, 3, 2, 0.7875),
    Sketcher.Constraint("DistanceY", 12, 2, 11, 2, 0.595799),
    Sketcher.Constraint("DistanceX", 21, 2, 20, 2, 0.179102),
    Sketcher.Constraint("DistanceY", 28, 2, 16, 2, 1.176199),
    Sketcher.Constraint("Distance", 0, 0.88617),
    Sketcher.Constraint("Distance", 2, 0.434489),
    Sketcher.Constraint("Distance", 8, 0.885439),
    Sketcher.Constraint("Distance", 12, 1.237868),
    Sketcher.Constraint("Distance", 13, 0.616641),
    Sketcher.Constraint("Distance", 15, 0.616971),
    Sketcher.Constraint("Distance", 17, 3.65279),
    Sketcher.Constraint("Distance", 19, 3.65238),
    Sketcher.Constraint("Distance", 20, 0.903921),
    Sketcher.Constraint("Distance", 21, 0.90386),
    Sketcher.Constraint("DistanceX", -1, 1, 0, 2, 2.473532),
    Sketcher.Constraint("DistanceY", -1, 1, 0, 2, 11.056579),
    Sketcher.Constraint("DistanceY", -1, 1, 1, 2, 11.134509),
    Sketcher.Constraint("DistanceX", -1, 1, 4, 2, 2.237008),
    Sketcher.Constraint("DistanceY", -1, 1, 4, 2, 12.39779),
    Sketcher.Constraint("DistanceX", -1, 1, 10, 2, 0.082321),
    Sketcher.Constraint("DistanceY", -1, 1, 10, 2, 10.339489),
    Sketcher.Constraint("DistanceY", -1, 1, 13, 2, 10.04037),
    Sketcher.Constraint("DistanceX", -1, 1, 18, 2, 5.101358),
    Sketcher.Constraint("DistanceX", -1, 1, 21, 2, 5.177921),
    Sketcher.Constraint("DistanceY", -1, 1, 21, 2, 10.48539),
    Sketcher.Constraint("DistanceY", -1, 1, 22, 2, 10.68705),
    Sketcher.Constraint("DistanceY", -1, 1, 29, 2, 8.253038),
    Sketcher.Constraint("DistanceY", 3, 2, 5, 2, 0.937891),
    Sketcher.Constraint("DistanceX", 2, 2, 6, 2, 0.09502),
    Sketcher.Constraint("DistanceX", 11, 2, 12, 2, 1.382318),
    Sketcher.Constraint("DistanceX", 13, 2, 14, 2, 0.816211),
    Sketcher.Constraint("DistanceY", 14, 2, 0, 2, 1.416111),
    Sketcher.Constraint("DistanceX", 15, 2, 14, 2, 0.117578),
    Sketcher.Constraint("DistanceX", 15, 2, 16, 2, 1.11084),
    Sketcher.Constraint("DistanceY", 16, 2, 15, 2, 0.544141),
    Sketcher.Constraint("DistanceX", 14, 2, 17, 2, 1.67002),
    Sketcher.Constraint("DistanceY", 7, 2, 18, 2, 0.046779),
    Sketcher.Constraint("DistanceX", 16, 2, 28, 2, 3.518568),
    Sketcher.Constraint("DistanceX", 29, 2, 23, 2, 1.761621),
])
pocket1 = body.newObject("PartDesign::Pocket", "Pocket")
pocket1.Profile = sketch5
pocket1.setExpression("Length", "Params.pocket1_length")

doc.recompute()
